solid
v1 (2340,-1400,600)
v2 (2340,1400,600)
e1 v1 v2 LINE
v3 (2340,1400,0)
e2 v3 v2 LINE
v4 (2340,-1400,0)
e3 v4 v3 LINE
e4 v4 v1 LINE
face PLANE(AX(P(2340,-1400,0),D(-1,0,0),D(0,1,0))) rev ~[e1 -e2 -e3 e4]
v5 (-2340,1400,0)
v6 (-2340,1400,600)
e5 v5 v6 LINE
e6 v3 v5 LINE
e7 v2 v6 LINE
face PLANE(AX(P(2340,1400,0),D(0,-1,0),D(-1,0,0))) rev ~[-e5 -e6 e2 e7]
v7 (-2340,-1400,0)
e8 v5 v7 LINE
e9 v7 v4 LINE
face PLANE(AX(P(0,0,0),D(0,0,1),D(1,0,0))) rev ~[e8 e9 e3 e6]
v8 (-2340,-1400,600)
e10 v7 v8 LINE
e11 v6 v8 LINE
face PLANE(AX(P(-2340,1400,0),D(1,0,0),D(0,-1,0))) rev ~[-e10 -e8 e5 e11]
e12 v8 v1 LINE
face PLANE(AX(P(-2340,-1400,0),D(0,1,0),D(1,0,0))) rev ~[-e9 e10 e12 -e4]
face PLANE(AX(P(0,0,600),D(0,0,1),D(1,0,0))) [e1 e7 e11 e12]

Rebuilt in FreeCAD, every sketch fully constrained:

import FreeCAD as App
import Part
import Sketcher

doc = App.newDocument("Part")
body = doc.addObject("PartDesign::Body", "Body")

# Sketch on XY plane
sketch1 = doc.addObject("Sketcher::SketchObject", "Sketch")
body.addObject(sketch1)
sketch1.AttachmentSupport = (doc.XY_Plane, [""])
sketch1.MapMode = "FlatFace"
sketch1.addGeometry(Part.LineSegment(App.Vector(-2340, 1400, 0), App.Vector(-2340, -1400, 0)), False)
sketch1.addGeometry(Part.LineSegment(App.Vector(-2340, -1400, 0), App.Vector(2340, -1400, 0)), False)
sketch1.addGeometry(Part.LineSegment(App.Vector(2340, -1400, 0), App.Vector(2340, 1400, 0)), False)
sketch1.addGeometry(Part.LineSegment(App.Vector(2340, 1400, 0), App.Vector(-2340, 1400, 0)), False)
sketch1.addConstraint(Sketcher.Constraint("Coincident", 0, 2, 1, 1))
sketch1.addConstraint(Sketcher.Constraint("Coincident", 1, 2, 2, 1))
sketch1.addConstraint(Sketcher.Constraint("Coincident", 2, 2, 3, 1))
sketch1.addConstraint(Sketcher.Constraint("Coincident", 3, 2, 0, 1))
sketch1.addConstraint(Sketcher.Constraint("Vertical", 0))
sketch1.addConstraint(Sketcher.Constraint("Horizontal", 1))
sketch1.addConstraint(Sketcher.Constraint("Vertical", 2))
sketch1.addConstraint(Sketcher.Constraint("Horizontal", 3))
sketch1.addConstraint(Sketcher.Constraint("Symmetric", 0, 2, 2, 2, -1, 1))
sketch1.addConstraint(Sketcher.Constraint("DistanceX", 1, 1, 1, 2, 4680.0))
sketch1.addConstraint(Sketcher.Constraint("DistanceY", 0, 2, 0, 1, 2800.0))
pad1 = doc.addObject("PartDesign::Pad", "Pad")
body.addObject(pad1)
pad1.Profile = sketch1
pad1.Length = 600

doc.recompute()
